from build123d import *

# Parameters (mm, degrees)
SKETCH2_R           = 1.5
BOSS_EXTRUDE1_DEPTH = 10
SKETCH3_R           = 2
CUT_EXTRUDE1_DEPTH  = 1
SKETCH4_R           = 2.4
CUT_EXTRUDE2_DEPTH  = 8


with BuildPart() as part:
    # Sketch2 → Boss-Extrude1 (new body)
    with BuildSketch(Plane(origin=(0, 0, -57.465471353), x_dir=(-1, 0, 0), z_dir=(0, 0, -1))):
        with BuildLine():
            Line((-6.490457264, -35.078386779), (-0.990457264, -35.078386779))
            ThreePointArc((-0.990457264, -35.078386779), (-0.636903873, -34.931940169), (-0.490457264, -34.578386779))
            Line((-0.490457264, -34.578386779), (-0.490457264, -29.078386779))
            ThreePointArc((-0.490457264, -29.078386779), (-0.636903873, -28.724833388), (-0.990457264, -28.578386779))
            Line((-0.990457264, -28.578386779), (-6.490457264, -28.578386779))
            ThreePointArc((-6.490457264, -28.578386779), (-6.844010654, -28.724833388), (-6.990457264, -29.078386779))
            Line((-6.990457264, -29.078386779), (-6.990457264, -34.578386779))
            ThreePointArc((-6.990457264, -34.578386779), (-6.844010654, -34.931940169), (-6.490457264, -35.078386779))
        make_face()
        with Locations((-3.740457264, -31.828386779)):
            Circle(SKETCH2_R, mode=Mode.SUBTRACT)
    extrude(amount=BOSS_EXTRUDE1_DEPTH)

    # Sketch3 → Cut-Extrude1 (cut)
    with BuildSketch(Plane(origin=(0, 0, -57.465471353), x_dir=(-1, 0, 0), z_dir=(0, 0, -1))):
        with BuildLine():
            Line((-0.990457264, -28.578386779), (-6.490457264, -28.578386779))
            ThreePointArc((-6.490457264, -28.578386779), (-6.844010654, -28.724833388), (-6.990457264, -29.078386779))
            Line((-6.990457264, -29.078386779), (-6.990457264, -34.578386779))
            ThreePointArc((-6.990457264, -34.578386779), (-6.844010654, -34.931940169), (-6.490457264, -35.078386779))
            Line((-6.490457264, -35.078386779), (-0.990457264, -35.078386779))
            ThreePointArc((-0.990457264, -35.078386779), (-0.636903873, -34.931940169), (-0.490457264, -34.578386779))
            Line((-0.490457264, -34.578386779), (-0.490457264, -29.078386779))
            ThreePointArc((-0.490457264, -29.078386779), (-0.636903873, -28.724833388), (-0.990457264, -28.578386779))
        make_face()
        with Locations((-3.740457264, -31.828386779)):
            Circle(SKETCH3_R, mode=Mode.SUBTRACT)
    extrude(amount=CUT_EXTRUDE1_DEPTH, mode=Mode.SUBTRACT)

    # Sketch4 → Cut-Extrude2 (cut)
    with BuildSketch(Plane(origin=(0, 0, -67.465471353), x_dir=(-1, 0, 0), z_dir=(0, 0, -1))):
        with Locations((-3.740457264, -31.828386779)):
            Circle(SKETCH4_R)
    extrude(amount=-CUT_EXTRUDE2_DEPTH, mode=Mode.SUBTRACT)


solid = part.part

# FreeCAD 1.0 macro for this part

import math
import FreeCAD as App
import Part
import Sketcher
from FreeCAD import Vector
Q = App.Units.Quantity

doc = App.newDocument("Part")
params = doc.addObject("Spreadsheet::Sheet", "Params")
for row, (alias, value) in enumerate([
    ("sketch1_diameter", "3 mm"),
    ("sketch1_radius", "0.5 mm"),
    ("sketch1_width", "5.5 mm"),
    ("pad1_length", "10 mm"),
    ("sketch2_diameter", "4 mm"),
    ("sketch2_radius", "0.5 mm"),
    ("sketch2_width", "5.5 mm"),
    ("pocket1_length", "1 mm"),
    ("sketch3_diameter", "4.8 mm"),
    ("pocket2_length", "8 mm"),
], start=1):
    params.set(f"A{row}", alias)
    params.set(f"B{row}", "=" + value)
    params.setAlias(f"B{row}", alias)

body = doc.addObject("PartDesign::Body", "Body")

sketch1 = body.newObject("Sketcher::SketchObject", "Sketch")
sketch1.AttachmentSupport = (doc.getObject("XY_Plane"), [""])
sketch1.MapMode = "FlatFace"
sketch1.AttachmentOffset = App.Placement(Vector(0, 0, -57.465471), App.Rotation())
sketch1.addGeometry([
    Part.LineSegment(Vector(6.490457, -35.078387, 0), Vector(0.990457, -35.078387, 0)),
    Part.ArcOfCircle(Part.Circle(Vector(0.990457, -34.578387, 0), Vector(0, 0, 1), 0.5), math.radians(180), math.radians(270)),
    Part.LineSegment(Vector(0.490457, -34.578387, 0), Vector(0.490457, -29.078387, 0)),
    Part.ArcOfCircle(Part.Circle(Vector(0.990457, -29.078387, 0), Vector(0, 0, 1), 0.5), math.radians(90), math.radians(180)),
    Part.LineSegment(Vector(0.990457, -28.578387, 0), Vector(6.490457, -28.578387, 0)),
    Part.ArcOfCircle(Part.Circle(Vector(6.490457, -29.078387, 0), Vector(0, 0, 1), 0.5), math.radians(0), math.radians(90)),
    Part.LineSegment(Vector(6.990457, -29.078387, 0), Vector(6.990457, -34.578387, 0)),
    Part.ArcOfCircle(Part.Circle(Vector(6.490457, -34.578387, 0), Vector(0, 0, 1), 0.5), math.radians(-90), math.radians(0)),
    Part.Circle(Vector(3.740457, -31.828387, 0), Vector(0, 0, 1), 1.5),
], False)
sketch1.addConstraint([
    Sketcher.Constraint("Tangent", 0, 2, 1, 2),
    Sketcher.Constraint("Tangent", 1, 1, 2, 1),
    Sketcher.Constraint("Tangent", 2, 2, 3, 2),
    Sketcher.Constraint("Tangent", 3, 1, 4, 1),
    Sketcher.Constraint("Tangent", 4, 2, 5, 2),
    Sketcher.Constraint("Tangent", 5, 1, 6, 1),
    Sketcher.Constraint("Tangent", 6, 2, 7, 2),
    Sketcher.Constraint("Tangent", 7, 1, 0, 1),
    Sketcher.Constraint("Horizontal", 0),
    Sketcher.Constraint("Vertical", 2),
    Sketcher.Constraint("Horizontal", 4),
    Sketcher.Constraint("Vertical", 6),
    Sketcher.Constraint("Equal", 1, 3),
    Sketcher.Constraint("Equal", 3, 5),
    Sketcher.Constraint("Equal", 5, 7),
    Sketcher.Constraint("Equal", 4, 2),
    Sketcher.Constraint("Diameter", 8, Q("3 mm")),
    Sketcher.Constraint("Radius", 1, Q("0.5 mm")),
    Sketcher.Constraint("DistanceX", 0, 2, 0, 1, Q("5.5 mm")),
    Sketcher.Constraint("DistanceX", 8, 3, 7, 3, Q("2.75 mm")),
    Sketcher.Constraint("DistanceY", 7, 3, 8, 3, Q("2.75 mm")),
    Sketcher.Constraint("DistanceX", -1, 1, 1, 3, Q("0.990457 mm")),
    Sketcher.Constraint("DistanceY", 1, 3, -1, 1, Q("34.578387 mm")),
])
sketch1.setExpression("Constraints[16]", "Params.sketch1_diameter")
sketch1.setExpression("Constraints[17]", "Params.sketch1_radius")
sketch1.setExpression("Constraints[18]", "Params.sketch1_width")
pad1 = body.newObject("PartDesign::Pad", "Pad")
pad1.Profile = sketch1
pad1.setExpression("Length", "Params.pad1_length")
pad1.Reversed = True

sketch2 = body.newObject("Sketcher::SketchObject", "Sketch001")
sketch2.AttachmentSupport = (doc.getObject("XY_Plane"), [""])
sketch2.MapMode = "FlatFace"
sketch2.AttachmentOffset = App.Placement(Vector(0, 0, -57.465471), App.Rotation())
sketch2.addGeometry([
    Part.LineSegment(Vector(0.990457, -28.578387, 0), Vector(6.490457, -28.578387, 0)),
    Part.ArcOfCircle(Part.Circle(Vector(6.490457, -29.078387, 0), Vector(0, 0, 1), 0.5), math.radians(0), math.radians(90)),
    Part.LineSegment(Vector(6.990457, -29.078387, 0), Vector(6.990457, -34.578387, 0)),
    Part.ArcOfCircle(Part.Circle(Vector(6.490457, -34.578387, 0), Vector(0, 0, 1), 0.5), math.radians(-90), math.radians(0)),
    Part.LineSegment(Vector(6.490457, -35.078387, 0), Vector(0.990457, -35.078387, 0)),
    Part.ArcOfCircle(Part.Circle(Vector(0.990457, -34.578387, 0), Vector(0, 0, 1), 0.5), math.radians(180), math.radians(270)),
    Part.LineSegment(Vector(0.490457, -34.578387, 0), Vector(0.490457, -29.078387, 0)),
    Part.ArcOfCircle(Part.Circle(Vector(0.990457, -29.078387, 0), Vector(0, 0, 1), 0.5), math.radians(90), math.radians(180)),
    Part.Circle(Vector(3.740457, -31.828387, 0), Vector(0, 0, 1), 2),
], False)
sketch2.addConstraint([
    Sketcher.Constraint("Tangent", 0, 2, 1, 2),
    Sketcher.Constraint("Tangent", 1, 1, 2, 1),
    Sketcher.Constraint("Tangent", 2, 2, 3, 2),
    Sketcher.Constraint("Tangent", 3, 1, 4, 1),
    Sketcher.Constraint("Tangent", 4, 2, 5, 2),
    Sketcher.Constraint("Tangent", 5, 1, 6, 1),
    Sketcher.Constraint("Tangent", 6, 2, 7, 2),
    Sketcher.Constraint("Tangent", 7, 1, 0, 1),
    Sketcher.Constraint("Horizontal", 0),
    Sketcher.Constraint("Vertical", 2),
    Sketcher.Constraint("Horizontal", 4),
    Sketcher.Constraint("Vertical", 6),
    Sketcher.Constraint("Equal", 1, 3),
    Sketcher.Constraint("Equal", 3, 5),
    Sketcher.Constraint("Equal", 5, 7),
    Sketcher.Constraint("Equal", 4, 2),
    Sketcher.Constraint("Diameter", 8, Q("4 mm")),
    Sketcher.Constraint("Radius", 1, Q("0.5 mm")),
    Sketcher.Constraint("DistanceX", 0, 1, 0, 2, Q("5.5 mm")),
    Sketcher.Constraint("DistanceX", 8, 3, 3, 3, Q("2.75 mm")),
    Sketcher.Constraint("DistanceY", 3, 3, 8, 3, Q("2.75 mm")),
    Sketcher.Constraint("DistanceX", -1, 1, 1, 3, Q("6.490457 mm")),
    Sketcher.Constraint("DistanceY", 1, 3, -1, 1, Q("29.078387 mm")),
])
sketch2.setExpression("Constraints[16]", "Params.sketch2_diameter")
sketch2.setExpression("Constraints[17]", "Params.sketch2_radius")
sketch2.setExpression("Constraints[18]", "Params.sketch2_width")
pocket1 = body.newObject("PartDesign::Pocket", "Pocket")
pocket1.Profile = sketch2
pocket1.setExpression("Length", "Params.pocket1_length")

sketch3 = body.newObject("Sketcher::SketchObject", "Sketch002")
sketch3.AttachmentSupport = (doc.getObject("XY_Plane"), [""])
sketch3.MapMode = "FlatFace"
sketch3.AttachmentOffset = App.Placement(Vector(0, 0, -67.465471), App.Rotation())
sketch3.addGeometry(Part.Circle(Vector(3.740457, -31.828387, 0), Vector(0, 0, 1), 2.4), False)
sketch3.addConstraint([
    Sketcher.Constraint("Diameter", 0, Q("4.8 mm")),
    Sketcher.Constraint("DistanceX", -1, 1, 0, 3, Q("3.740457 mm")),
    Sketcher.Constraint("DistanceY", 0, 3, -1, 1, Q("31.828387 mm")),
])
sketch3.setExpression("Constraints[0]", "Params.sketch3_diameter")
pocket2 = body.newObject("PartDesign::Pocket", "Pocket001")
pocket2.Profile = sketch3
pocket2.setExpression("Length", "Params.pocket2_length")
pocket2.Reversed = True

doc.recompute()
